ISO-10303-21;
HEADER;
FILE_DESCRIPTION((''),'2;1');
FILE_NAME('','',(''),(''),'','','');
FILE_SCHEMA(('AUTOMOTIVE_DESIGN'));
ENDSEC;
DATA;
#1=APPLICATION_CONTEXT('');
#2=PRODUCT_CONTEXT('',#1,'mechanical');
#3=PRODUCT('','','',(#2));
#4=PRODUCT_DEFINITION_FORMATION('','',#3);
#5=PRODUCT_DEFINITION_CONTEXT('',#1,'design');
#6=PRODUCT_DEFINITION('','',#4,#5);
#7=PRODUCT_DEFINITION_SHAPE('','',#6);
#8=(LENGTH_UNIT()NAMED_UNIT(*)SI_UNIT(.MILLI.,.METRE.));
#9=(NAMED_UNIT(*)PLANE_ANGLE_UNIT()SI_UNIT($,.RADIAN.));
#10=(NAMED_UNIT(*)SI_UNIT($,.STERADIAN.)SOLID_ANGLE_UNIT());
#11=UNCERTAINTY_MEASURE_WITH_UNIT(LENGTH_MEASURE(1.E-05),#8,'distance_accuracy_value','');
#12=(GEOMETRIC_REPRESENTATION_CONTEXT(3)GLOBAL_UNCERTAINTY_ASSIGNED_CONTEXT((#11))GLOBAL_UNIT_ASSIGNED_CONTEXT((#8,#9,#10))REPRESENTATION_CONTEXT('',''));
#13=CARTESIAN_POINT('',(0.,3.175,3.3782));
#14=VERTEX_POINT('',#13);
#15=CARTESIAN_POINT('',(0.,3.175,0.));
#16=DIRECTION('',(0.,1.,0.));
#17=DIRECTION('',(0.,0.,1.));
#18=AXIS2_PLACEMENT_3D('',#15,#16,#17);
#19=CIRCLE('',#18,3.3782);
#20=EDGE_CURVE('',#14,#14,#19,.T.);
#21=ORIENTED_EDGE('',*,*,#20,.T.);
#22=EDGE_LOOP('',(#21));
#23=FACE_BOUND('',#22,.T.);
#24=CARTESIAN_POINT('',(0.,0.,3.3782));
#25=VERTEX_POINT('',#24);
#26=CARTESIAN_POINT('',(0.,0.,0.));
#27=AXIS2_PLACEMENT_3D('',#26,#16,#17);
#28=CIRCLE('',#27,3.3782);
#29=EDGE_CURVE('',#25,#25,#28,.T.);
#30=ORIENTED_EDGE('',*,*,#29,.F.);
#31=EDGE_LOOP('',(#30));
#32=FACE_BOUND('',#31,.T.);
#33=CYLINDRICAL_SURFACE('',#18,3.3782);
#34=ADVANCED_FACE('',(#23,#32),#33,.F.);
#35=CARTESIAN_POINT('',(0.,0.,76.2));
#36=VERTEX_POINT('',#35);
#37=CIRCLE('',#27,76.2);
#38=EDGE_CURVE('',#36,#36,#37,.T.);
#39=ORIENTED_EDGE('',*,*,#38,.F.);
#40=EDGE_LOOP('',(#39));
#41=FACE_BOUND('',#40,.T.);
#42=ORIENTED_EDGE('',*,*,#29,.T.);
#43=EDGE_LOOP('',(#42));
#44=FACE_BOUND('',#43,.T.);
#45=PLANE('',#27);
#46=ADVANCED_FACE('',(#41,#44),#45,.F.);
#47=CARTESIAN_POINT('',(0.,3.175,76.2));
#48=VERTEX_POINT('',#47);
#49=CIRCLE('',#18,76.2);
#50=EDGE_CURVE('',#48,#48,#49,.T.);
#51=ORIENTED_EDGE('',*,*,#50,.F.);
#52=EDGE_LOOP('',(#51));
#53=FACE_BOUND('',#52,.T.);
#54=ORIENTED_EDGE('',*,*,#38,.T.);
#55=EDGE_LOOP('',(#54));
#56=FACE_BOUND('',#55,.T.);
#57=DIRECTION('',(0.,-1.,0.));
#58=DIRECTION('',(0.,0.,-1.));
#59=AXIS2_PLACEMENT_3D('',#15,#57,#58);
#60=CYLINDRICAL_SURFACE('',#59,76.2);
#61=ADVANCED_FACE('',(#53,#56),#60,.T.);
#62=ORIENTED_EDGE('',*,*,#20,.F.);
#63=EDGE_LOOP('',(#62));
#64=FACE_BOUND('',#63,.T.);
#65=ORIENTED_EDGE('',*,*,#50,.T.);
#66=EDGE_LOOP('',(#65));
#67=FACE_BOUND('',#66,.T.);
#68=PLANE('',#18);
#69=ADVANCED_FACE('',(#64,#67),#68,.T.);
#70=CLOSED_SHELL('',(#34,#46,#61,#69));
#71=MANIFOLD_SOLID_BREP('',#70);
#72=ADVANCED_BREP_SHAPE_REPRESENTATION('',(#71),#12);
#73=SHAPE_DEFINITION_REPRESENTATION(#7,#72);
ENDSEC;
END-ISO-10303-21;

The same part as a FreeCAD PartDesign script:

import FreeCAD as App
import Part
import Sketcher

V = App.Vector
Q = App.Units.Quantity

doc = App.newDocument("Part")
body = doc.addObject("PartDesign::Body", "Body")

sketch1 = body.newObject("Sketcher::SketchObject", "Sketch")
sketch1.AttachmentSupport = (doc.getObject("XZ_Plane"), [""])
sketch1.MapMode = "FlatFace"
sketch1.addGeometry(Part.Circle(V(0, 0, 0), V(0, 0, 1), 76), False)
sketch1.addConstraint([
    Sketcher.Constraint("Coincident", 0, 3, -1, 1),
    Sketcher.Constraint("Diameter", 0, Q("6 in")),
])
pad1 = body.newObject("PartDesign::Pad", "Pad")
pad1.Profile = sketch1
pad1.Length = Q("0.125 in")
pad1.Reversed = True

sketch2 = body.newObject("Sketcher::SketchObject", "Sketch001")
sketch2.AttachmentSupport = (doc.getObject("XZ_Plane"), [""])
sketch2.MapMode = "FlatFace"
sketch2.AttachmentOffset = App.Placement(V(0, 0, -0.125 * 25.4), App.Rotation())
sketch2.addGeometry(Part.Circle(V(0, 0, 0), V(0, 0, 1), 3.4), False)
sketch2.addConstraint([
    Sketcher.Constraint("Coincident", 0, 3, -1, 1),
    Sketcher.Constraint("Diameter", 0, Q("0.266 in")),
])
doc.recompute()
hole = body.newObject("PartDesign::Hole", "Hole")
hole.Profile = sketch2
hole.ThreadType = "None"
hole.Diameter = Q("0.266 in")
hole.DepthType = "ThroughAll"
hole.Reversed = True

doc.recompute()
